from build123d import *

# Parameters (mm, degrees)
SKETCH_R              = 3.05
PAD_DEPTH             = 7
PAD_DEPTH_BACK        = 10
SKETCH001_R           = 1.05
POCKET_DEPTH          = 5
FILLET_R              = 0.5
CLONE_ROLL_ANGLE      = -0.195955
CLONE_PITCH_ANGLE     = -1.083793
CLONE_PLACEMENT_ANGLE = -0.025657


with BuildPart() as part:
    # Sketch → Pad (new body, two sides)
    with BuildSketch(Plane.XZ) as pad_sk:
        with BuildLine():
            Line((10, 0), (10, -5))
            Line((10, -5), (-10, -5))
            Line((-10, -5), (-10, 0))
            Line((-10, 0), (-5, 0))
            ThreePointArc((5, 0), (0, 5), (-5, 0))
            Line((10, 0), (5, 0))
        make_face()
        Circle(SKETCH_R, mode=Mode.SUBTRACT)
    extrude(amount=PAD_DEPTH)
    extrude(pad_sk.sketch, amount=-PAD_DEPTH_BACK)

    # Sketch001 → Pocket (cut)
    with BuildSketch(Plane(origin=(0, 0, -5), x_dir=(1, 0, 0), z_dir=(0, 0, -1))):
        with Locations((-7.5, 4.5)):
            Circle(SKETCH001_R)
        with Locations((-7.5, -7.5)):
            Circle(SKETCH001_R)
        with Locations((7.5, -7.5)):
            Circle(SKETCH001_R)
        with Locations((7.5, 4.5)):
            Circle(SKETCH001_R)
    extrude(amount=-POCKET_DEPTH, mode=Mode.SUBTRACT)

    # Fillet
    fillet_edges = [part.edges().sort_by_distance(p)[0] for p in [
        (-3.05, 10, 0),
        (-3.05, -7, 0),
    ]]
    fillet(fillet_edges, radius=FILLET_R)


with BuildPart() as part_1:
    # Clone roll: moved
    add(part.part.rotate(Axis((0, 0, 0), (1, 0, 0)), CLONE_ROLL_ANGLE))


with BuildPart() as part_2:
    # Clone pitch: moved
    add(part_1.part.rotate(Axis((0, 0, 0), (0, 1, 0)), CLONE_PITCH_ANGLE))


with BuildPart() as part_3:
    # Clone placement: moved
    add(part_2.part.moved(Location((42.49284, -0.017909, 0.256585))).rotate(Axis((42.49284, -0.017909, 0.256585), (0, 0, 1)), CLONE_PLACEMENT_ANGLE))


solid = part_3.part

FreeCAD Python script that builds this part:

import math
import FreeCAD as App
import Part
import Sketcher

V = App.Vector


def edges_at(feature, points):
    """Names of the edges that pass closest to the given points."""
    edges = feature.Shape.Edges
    near = lambda p: min(range(len(edges)), key=lambda i: edges[i].distToShape(Part.Vertex(*p))[0])
    return sorted({f"Edge{near(p) + 1}" for p in points})

doc = App.newDocument("Part")
body = doc.addObject("PartDesign::Body", "Body")

sketch1 = body.newObject("Sketcher::SketchObject", "Sketch")
sketch1.AttachmentSupport = (doc.getObject("XZ_Plane"), [""])
sketch1.MapMode = "FlatFace"
sketch1.addGeometry([
    Part.LineSegment(V(10, -5, 0), V(10, 0, 0)),
    Part.LineSegment(V(10, 0, 0), V(5, 0, 0)),
    Part.ArcOfCircle(Part.Circle(V(0, 0, 0), V(0, 0, 1), 5), math.radians(0), math.radians(180)),
    Part.LineSegment(V(-5, 0, 0), V(-10, 0, 0)),
    Part.LineSegment(V(-10, 0, 0), V(-10, -5, 0)),
    Part.LineSegment(V(-10, -5, 0), V(10, -5, 0)),
    Part.Circle(V(0, 0, 0), V(0, 0, 1), 3.05),
], False)
sketch1.addConstraint([
    Sketcher.Constraint("Coincident", 0, 2, 1, 1),
    Sketcher.Constraint("Coincident", 1, 2, 2, 1),
    Sketcher.Constraint("Coincident", 2, 2, 3, 1),
    Sketcher.Constraint("Coincident", 3, 2, 4, 1),
    Sketcher.Constraint("Coincident", 4, 2, 5, 1),
    Sketcher.Constraint("Coincident", 5, 2, 0, 1),
    Sketcher.Constraint("Vertical", 0),
    Sketcher.Constraint("Horizontal", 1),
    Sketcher.Constraint("Horizontal", 3),
    Sketcher.Constraint("Vertical", 4),
    Sketcher.Constraint("Horizontal", 5),
    Sketcher.Constraint("Coincident", 2, 3, -1, 1),
    Sketcher.Constraint("Coincident", 6, 3, -1, 1),
    Sketcher.Constraint("Symmetric", 0, 2, 3, 2, -1, 1),
    Sketcher.Constraint("PointOnObject", 0, 2, -1),
    Sketcher.Constraint("Equal", 3, 0),
    Sketcher.Constraint("Radius", 2, 5.0),
    Sketcher.Constraint("Diameter", 6, 6.1),
    Sketcher.Constraint("DistanceX", 1, 2, 1, 1, 5.0),
])
pad1 = body.newObject("PartDesign::Pad", "Pad")
pad1.Profile = sketch1
pad1.Type = "TwoLengths"
pad1.Length = 7
pad1.Length2 = 10

sketch2 = body.newObject("Sketcher::SketchObject", "Sketch001")
sketch2.AttachmentSupport = (doc.getObject("XY_Plane"), [""])
sketch2.MapMode = "FlatFace"
sketch2.AttachmentOffset = App.Placement(V(0, 0, -5), App.Rotation())
sketch2.addGeometry([
    Part.Circle(V(-7.5, -4.5, 0), V(0, 0, 1), 1.05),
    Part.Circle(V(-7.5, 7.5, 0), V(0, 0, 1), 1.05),
    Part.Circle(V(7.5, 7.5, 0), V(0, 0, 1), 1.05),
    Part.Circle(V(7.5, -4.5, 0), V(0, 0, 1), 1.05),
], False)
sketch2.addConstraint([
    Sketcher.Constraint("Equal", 0, 1),
    Sketcher.Constraint("Equal", 1, 2),
    Sketcher.Constraint("Equal", 2, 3),
    Sketcher.Constraint("Symmetric", 1, 3, 2, 3, -2),
    Sketcher.Constraint("Symmetric", 0, 3, 3, 3, -2),
    Sketcher.Constraint("Vertical", 0, 3, 1, 3),
    Sketcher.Constraint("Diameter", 0, 2.1),
    Sketcher.Constraint("DistanceY", 0, 3, 1, 3, 12.0),
    Sketcher.Constraint("DistanceX", 1, 3, 2, 3, 15.0),
    Sketcher.Constraint("DistanceY", 0, 3, -1, 1, 4.5),
])
pocket1 = body.newObject("PartDesign::Pocket", "Pocket")
pocket1.Profile = sketch2
pocket1.Length = 5
pocket1.Reversed = True
doc.recompute()

fillet = body.newObject("PartDesign::Fillet", "Fillet")
fillet.Base = (pocket1, edges_at(pocket1, [(-3.05, 10, 0), (-3.05, -7, 0)]))
fillet.Radius = 0.5
body2 = doc.addObject("PartDesign::Body", "Body001")
doc.recompute()

body.Placement = App.Placement(V(0, 0, 0), App.Rotation(V(1, 0, 0), 359.804045))
boolean = body2.newObject("PartDesign::Boolean", "Boolean")
boolean.Type = "Fuse"
boolean.addObjects([body])
body3 = doc.addObject("PartDesign::Body", "Body002")
doc.recompute()

body2.Placement = App.Placement(V(0, 0, 0), App.Rotation(V(0, 1, 0), 358.916207))
boolean2 = body3.newObject("PartDesign::Boolean", "Boolean001")
boolean2.Type = "Fuse"
boolean2.addObjects([body2])
body4 = doc.addObject("PartDesign::Body", "Body003")
doc.recompute()

body3.Placement = App.Placement(V(42.49284, -0.017909, 0.256585), App.Rotation(V(0, 0, 1), 359.974343))
boolean3 = body4.newObject("PartDesign::Boolean", "Boolean002")
boolean3.Type = "Fuse"
boolean3.addObjects([body3])

doc.recompute()
